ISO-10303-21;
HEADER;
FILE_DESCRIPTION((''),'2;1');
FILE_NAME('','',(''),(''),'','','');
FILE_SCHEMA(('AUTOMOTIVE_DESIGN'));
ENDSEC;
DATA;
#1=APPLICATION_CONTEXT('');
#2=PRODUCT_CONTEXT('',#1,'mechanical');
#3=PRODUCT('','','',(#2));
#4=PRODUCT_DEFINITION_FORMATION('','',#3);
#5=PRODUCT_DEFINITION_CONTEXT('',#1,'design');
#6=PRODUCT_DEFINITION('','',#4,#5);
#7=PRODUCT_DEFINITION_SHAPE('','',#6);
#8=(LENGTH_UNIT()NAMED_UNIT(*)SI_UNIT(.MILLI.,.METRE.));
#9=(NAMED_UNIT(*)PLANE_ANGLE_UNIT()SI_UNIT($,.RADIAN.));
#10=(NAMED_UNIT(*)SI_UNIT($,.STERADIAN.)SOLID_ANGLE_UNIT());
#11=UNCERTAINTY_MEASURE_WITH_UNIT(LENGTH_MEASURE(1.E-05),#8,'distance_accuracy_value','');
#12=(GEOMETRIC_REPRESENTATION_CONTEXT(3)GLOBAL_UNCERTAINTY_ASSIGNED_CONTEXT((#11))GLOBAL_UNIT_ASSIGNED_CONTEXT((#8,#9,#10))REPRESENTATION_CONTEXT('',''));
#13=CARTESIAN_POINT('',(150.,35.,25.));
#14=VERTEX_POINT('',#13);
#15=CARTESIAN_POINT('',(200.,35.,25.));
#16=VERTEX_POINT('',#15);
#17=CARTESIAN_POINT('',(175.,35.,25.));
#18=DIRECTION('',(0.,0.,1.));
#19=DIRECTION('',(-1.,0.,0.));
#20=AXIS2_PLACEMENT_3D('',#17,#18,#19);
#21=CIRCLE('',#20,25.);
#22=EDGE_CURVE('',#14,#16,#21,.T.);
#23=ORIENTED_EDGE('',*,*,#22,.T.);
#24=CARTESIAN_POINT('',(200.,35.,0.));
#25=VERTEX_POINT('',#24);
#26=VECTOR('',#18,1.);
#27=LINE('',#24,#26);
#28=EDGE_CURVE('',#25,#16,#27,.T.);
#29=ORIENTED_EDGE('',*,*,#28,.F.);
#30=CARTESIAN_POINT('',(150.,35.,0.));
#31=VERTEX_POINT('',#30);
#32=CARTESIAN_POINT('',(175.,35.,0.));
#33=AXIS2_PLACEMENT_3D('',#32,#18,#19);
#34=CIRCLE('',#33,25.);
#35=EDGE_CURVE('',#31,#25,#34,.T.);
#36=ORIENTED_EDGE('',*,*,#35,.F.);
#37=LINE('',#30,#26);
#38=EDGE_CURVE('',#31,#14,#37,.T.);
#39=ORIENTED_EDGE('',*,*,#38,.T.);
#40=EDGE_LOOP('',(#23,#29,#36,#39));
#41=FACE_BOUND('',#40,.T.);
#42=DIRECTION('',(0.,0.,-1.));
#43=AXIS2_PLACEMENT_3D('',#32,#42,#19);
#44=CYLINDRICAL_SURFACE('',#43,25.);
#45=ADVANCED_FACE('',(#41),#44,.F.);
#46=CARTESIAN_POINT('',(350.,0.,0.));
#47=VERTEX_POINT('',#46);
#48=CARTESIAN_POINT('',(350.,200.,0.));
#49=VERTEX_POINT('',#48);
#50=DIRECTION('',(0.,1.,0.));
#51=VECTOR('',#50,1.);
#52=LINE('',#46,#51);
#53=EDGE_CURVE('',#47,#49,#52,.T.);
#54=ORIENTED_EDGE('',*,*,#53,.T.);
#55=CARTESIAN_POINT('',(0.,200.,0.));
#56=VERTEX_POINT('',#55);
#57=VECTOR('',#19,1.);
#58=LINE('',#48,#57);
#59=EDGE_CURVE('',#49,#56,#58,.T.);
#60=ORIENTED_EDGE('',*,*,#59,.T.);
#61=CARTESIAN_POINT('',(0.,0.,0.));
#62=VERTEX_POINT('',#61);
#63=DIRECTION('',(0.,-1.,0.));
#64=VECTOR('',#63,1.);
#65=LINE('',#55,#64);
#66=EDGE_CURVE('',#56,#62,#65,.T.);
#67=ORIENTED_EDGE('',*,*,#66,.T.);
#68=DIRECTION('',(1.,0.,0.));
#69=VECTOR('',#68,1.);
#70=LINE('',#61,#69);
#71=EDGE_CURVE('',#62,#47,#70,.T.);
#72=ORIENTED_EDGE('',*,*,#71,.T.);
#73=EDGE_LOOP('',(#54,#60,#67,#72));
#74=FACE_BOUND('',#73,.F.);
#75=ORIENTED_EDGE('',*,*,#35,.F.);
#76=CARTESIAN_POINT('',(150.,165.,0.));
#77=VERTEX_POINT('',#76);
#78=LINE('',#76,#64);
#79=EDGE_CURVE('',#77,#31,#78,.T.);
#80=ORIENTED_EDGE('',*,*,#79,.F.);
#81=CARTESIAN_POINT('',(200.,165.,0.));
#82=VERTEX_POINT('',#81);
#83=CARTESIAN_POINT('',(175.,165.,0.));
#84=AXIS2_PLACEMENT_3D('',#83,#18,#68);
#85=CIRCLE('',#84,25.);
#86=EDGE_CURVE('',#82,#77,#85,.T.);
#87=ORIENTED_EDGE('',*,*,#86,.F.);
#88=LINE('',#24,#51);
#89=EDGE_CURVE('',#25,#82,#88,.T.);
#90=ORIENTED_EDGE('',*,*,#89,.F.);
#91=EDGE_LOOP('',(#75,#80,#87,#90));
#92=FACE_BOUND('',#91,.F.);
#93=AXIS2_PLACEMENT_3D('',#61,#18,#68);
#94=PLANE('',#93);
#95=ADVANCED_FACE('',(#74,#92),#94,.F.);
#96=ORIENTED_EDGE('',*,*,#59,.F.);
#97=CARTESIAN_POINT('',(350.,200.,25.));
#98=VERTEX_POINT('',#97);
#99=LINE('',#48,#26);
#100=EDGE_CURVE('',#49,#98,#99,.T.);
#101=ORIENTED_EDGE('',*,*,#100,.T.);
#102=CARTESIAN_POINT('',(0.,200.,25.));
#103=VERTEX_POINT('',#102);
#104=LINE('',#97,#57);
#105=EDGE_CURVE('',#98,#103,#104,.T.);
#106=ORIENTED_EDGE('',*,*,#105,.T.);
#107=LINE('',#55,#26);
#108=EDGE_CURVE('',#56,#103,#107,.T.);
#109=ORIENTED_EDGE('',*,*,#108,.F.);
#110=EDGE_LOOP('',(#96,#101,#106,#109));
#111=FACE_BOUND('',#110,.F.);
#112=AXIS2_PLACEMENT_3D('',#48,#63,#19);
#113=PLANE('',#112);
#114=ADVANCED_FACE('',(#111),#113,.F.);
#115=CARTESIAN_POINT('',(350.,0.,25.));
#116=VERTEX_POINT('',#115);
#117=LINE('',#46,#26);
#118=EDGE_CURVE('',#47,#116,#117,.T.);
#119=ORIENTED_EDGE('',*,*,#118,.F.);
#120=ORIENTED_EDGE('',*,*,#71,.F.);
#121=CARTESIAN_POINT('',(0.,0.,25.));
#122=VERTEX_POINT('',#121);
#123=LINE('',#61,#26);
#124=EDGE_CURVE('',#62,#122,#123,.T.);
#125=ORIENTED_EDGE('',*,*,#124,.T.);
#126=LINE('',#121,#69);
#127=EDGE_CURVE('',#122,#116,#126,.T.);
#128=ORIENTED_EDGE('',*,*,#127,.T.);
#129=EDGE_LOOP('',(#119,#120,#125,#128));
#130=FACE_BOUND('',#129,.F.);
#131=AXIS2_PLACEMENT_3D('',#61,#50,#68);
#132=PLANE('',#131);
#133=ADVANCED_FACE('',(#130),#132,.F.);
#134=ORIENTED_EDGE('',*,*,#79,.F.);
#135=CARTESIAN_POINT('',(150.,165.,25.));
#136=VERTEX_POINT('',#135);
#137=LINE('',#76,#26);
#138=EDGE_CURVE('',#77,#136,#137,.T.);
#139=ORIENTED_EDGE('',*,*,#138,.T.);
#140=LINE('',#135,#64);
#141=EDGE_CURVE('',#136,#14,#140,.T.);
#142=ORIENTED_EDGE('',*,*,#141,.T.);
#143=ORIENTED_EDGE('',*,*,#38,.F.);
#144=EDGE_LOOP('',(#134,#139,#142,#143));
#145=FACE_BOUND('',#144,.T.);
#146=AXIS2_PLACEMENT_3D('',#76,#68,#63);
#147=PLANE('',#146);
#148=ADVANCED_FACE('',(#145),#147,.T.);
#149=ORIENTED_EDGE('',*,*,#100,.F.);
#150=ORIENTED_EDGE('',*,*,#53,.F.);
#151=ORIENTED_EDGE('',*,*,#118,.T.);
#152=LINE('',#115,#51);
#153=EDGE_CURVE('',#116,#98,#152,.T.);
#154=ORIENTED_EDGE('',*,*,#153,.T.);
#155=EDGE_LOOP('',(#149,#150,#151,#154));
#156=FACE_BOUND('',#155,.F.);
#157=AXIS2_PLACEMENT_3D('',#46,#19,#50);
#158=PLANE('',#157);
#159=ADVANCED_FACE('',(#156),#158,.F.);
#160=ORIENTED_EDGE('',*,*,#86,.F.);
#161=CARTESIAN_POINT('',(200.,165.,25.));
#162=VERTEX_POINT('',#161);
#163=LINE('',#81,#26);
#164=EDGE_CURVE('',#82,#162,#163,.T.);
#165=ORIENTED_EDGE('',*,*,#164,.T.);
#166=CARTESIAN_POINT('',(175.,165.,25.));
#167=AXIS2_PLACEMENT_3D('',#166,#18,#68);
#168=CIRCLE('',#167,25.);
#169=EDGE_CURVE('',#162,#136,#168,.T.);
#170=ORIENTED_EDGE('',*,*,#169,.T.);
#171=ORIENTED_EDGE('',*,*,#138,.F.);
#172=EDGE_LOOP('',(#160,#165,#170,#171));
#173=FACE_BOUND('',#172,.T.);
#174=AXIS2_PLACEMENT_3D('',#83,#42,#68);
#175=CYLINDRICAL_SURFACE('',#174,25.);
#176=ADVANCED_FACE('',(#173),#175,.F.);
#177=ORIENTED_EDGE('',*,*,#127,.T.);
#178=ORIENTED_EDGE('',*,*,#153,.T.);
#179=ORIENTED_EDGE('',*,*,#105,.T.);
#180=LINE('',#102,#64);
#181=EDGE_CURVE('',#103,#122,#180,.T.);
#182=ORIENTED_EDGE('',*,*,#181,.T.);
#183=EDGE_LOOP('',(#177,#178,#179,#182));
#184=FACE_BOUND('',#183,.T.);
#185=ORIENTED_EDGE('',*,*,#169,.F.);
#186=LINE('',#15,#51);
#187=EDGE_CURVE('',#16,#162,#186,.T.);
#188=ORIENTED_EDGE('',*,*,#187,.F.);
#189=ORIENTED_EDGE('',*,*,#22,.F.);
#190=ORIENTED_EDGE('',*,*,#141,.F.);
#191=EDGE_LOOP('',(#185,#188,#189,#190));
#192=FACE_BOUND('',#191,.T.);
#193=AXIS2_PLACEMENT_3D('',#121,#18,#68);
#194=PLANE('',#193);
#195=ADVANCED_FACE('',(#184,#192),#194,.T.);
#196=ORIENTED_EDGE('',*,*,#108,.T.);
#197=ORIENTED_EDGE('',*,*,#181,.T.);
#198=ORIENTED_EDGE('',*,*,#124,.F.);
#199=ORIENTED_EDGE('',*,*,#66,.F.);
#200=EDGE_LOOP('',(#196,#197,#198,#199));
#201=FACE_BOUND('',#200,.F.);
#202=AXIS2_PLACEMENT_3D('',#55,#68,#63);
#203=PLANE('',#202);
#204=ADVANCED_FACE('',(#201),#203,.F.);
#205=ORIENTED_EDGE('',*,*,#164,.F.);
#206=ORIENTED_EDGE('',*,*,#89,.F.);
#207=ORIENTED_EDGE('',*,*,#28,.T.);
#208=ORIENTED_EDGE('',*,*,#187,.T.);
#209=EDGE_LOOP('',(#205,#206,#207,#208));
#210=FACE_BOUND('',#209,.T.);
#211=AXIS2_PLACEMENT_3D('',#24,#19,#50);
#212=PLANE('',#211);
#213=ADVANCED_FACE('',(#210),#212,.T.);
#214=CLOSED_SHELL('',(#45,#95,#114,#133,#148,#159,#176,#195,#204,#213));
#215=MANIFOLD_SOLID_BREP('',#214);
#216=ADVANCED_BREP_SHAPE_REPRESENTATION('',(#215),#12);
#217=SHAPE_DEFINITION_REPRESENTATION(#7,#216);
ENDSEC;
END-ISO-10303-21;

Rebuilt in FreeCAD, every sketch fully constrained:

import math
import FreeCAD as App
import Part
import Sketcher

V = App.Vector
Q = App.Units.Quantity

doc = App.newDocument("Part")
body = doc.addObject("PartDesign::Body", "Body")

# Sketch on XY plane
sketch1 = doc.addObject("Sketcher::SketchObject", "Sketch")
body.addObject(sketch1)
sketch1.AttachmentSupport = (doc.XY_Plane, [""])
sketch1.MapMode = "FlatFace"
sketch1.addGeometry(Part.LineSegment(V(0, 200, 0), V(0, 0, 0)), False)
sketch1.addGeometry(Part.LineSegment(V(0, 0, 0), V(350, 0, 0)), False)
sketch1.addGeometry(Part.LineSegment(V(350, 0, 0), V(350, 200, 0)), False)
sketch1.addGeometry(Part.LineSegment(V(350, 200, 0), V(0, 200, 0)), False)
sketch1.addGeometry(Part.LineSegment(V(150, 35, 0), V(150, 165, 0)), False)
sketch1.addGeometry(Part.ArcOfCircle(Part.Circle(V(175, 165, 0), V(0, 0, 1), 25), math.radians(0), math.radians(180)), False)
sketch1.addGeometry(Part.LineSegment(V(200, 165, 0), V(200, 35, 0)), False)
sketch1.addGeometry(Part.ArcOfCircle(Part.Circle(V(175, 35, 0), V(0, 0, 1), 25), math.radians(180), math.radians(360)), False)
sketch1.addConstraint(Sketcher.Constraint("Coincident", 0, 2, 1, 1))
sketch1.addConstraint(Sketcher.Constraint("Coincident", 1, 2, 2, 1))
sketch1.addConstraint(Sketcher.Constraint("Coincident", 2, 2, 3, 1))
sketch1.addConstraint(Sketcher.Constraint("Coincident", 3, 2, 0, 1))
sketch1.addConstraint(Sketcher.Constraint("Tangent", 4, 2, 5, 2))
sketch1.addConstraint(Sketcher.Constraint("Tangent", 5, 1, 6, 1))
sketch1.addConstraint(Sketcher.Constraint("Tangent", 6, 2, 7, 2))
sketch1.addConstraint(Sketcher.Constraint("Tangent", 7, 1, 4, 1))
sketch1.addConstraint(Sketcher.Constraint("Vertical", 0))
sketch1.addConstraint(Sketcher.Constraint("Horizontal", 1))
sketch1.addConstraint(Sketcher.Constraint("Vertical", 2))
sketch1.addConstraint(Sketcher.Constraint("Horizontal", 3))
sketch1.addConstraint(Sketcher.Constraint("Vertical", 4))
sketch1.addConstraint(Sketcher.Constraint("Vertical", 6))
sketch1.addConstraint(Sketcher.Constraint("Coincident", 0, 2, -1, 1))
sketch1.addConstraint(Sketcher.Constraint("DistanceY", 4, 1, 4, 2, Q("130 mm")))
sketch1.addConstraint(Sketcher.Constraint("DistanceX", -1, 1, 5, 3, Q("175 mm")))
sketch1.addConstraint(Sketcher.Constraint("Radius", 5, Q("25 mm")))
sketch1.addConstraint(Sketcher.Constraint("DistanceX", 7, 3, 1, 2, Q("175 mm")))
sketch1.addConstraint(Sketcher.Constraint("DistanceY", 0, 2, 0, 1, Q("200 mm")))
sketch1.addConstraint(Sketcher.Constraint("DistanceY", -1, 1, 5, 3, Q("165 mm")))
pad1 = doc.addObject("PartDesign::Pad", "Pad")
body.addObject(pad1)
pad1.Profile = sketch1
pad1.Length = 25

doc.recompute()
